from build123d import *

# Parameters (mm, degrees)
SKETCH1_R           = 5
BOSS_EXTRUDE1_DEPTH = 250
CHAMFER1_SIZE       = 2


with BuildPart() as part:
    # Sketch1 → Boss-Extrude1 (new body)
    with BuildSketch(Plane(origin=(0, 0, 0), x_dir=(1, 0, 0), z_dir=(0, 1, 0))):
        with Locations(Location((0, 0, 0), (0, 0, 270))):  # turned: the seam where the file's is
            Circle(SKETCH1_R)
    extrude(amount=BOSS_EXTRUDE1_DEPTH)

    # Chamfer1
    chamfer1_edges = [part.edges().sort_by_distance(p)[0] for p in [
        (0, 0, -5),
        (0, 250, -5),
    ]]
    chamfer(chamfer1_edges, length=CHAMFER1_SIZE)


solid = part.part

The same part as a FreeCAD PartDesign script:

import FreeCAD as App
import Part
import Sketcher
from FreeCAD import Vector
Q = App.Units.Quantity


def edges_at(feature, points):
    """Names of the edges that pass closest to the given points."""
    edges = feature.Shape.Edges
    near = lambda p: min(range(len(edges)), key=lambda i: edges[i].distToShape(Part.Vertex(*p))[0])
    return sorted({f"Edge{near(p) + 1}" for p in points})

doc = App.newDocument("Part")
params = doc.addObject("Spreadsheet::Sheet", "Params")
for row, (alias, value) in enumerate([
    ("sketch1_diameter", "10 mm"),
    ("pad1_length", "250 mm"),
    ("chamfer_size", "2 mm"),
], start=1):
    params.set(f"A{row}", alias)
    params.set(f"B{row}", "=" + value)
    params.setAlias(f"B{row}", alias)

body = doc.addObject("PartDesign::Body", "Body")

# Sketch on XZ plane
sketch1 = body.newObject("Sketcher::SketchObject", "Sketch")
sketch1.AttachmentSupport = (doc.getObject("XZ_Plane"), [""])
sketch1.MapMode = "FlatFace"
sketch1.addGeometry(Part.Circle(Vector(0, 0, 0), Vector(0, 0, 1), 5), False)
sketch1.addConstraint([
    Sketcher.Constraint("Coincident", 0, 3, -1, 1),
    Sketcher.Constraint("Diameter", 0, Q("10 mm")),
])
sketch1.setExpression("Constraints[1]", "Params.sketch1_diameter")
pad1 = body.newObject("PartDesign::Pad", "Pad")
pad1.Profile = sketch1
pad1.setExpression("Length", "Params.pad1_length")
pad1.Reversed = True
doc.recompute()

chamfer = body.newObject("PartDesign::Chamfer", "Chamfer")
chamfer.Base = (pad1, edges_at(pad1, [(0, 0, -5), (0, 250, -5)]))
chamfer.setExpression("Size", "Params.chamfer_size")

doc.recompute()
